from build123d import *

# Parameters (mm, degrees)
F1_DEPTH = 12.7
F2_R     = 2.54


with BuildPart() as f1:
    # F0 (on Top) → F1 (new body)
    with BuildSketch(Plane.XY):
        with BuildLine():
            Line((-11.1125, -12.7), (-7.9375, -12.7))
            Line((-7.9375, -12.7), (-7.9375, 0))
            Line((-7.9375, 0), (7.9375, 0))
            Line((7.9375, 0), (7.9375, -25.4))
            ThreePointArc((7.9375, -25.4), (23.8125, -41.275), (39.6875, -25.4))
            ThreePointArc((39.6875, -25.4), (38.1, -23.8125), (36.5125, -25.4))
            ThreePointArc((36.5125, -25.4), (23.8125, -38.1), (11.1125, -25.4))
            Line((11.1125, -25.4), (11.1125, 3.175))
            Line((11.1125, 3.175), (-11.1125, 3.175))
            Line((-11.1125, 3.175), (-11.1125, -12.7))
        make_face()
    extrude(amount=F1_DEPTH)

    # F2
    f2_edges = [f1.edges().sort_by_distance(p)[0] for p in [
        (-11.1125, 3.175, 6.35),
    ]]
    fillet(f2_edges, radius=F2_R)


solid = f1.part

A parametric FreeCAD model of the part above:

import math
import FreeCAD as App
import Part
import Sketcher

V = App.Vector
Q = App.Units.Quantity


def edges_at(feature, points):
    """Names of the edges that pass closest to the given points."""
    edges = feature.Shape.Edges
    near = lambda p: min(range(len(edges)), key=lambda i: edges[i].distToShape(Part.Vertex(*p))[0])
    return sorted({f"Edge{near(p) + 1}" for p in points})

doc = App.newDocument("Part")
body = doc.addObject("PartDesign::Body", "Body")

sketch1 = doc.addObject("Sketcher::SketchObject", "Sketch")
body.addObject(sketch1)
sketch1.AttachmentSupport = (doc.XY_Plane, [""])
sketch1.MapMode = "FlatFace"
sketch1.addGeometry(Part.LineSegment(V(-11.1, -12.7, 0), V(-7.9, -12.7, 0)), False)
sketch1.addGeometry(Part.LineSegment(V(-7.9, -12.7, 0), V(-7.9, 0, 0)), False)
sketch1.addGeometry(Part.LineSegment(V(-7.9, 0, 0), V(7.9, 0, 0)), False)
sketch1.addGeometry(Part.LineSegment(V(7.9, 0, 0), V(7.9, -25.4, 0)), False)
sketch1.addGeometry(Part.ArcOfCircle(Part.Circle(V(23.8, -25.4, 0), V(0, 0, 1), 15.9), math.radians(180), math.radians(360)), False)
sketch1.addGeometry(Part.ArcOfCircle(Part.Circle(V(38.1, -25.4, 0), V(0, 0, 1), 1.6), math.radians(0), math.radians(180)), False)
sketch1.addGeometry(Part.ArcOfCircle(Part.Circle(V(23.8, -25.4, 0), V(0, 0, 1), 12.7), math.radians(180), math.radians(360)), False)
sketch1.addGeometry(Part.LineSegment(V(11.1, -25.4, 0), V(11.1, 3.2, 0)), False)
sketch1.addGeometry(Part.LineSegment(V(11.1, 3.2, 0), V(-11.1, 3.2, 0)), False)
sketch1.addGeometry(Part.LineSegment(V(-11.1, 3.2, 0), V(-11.1, -12.7, 0)), False)
sketch1.addConstraint(Sketcher.Constraint("Coincident", 0, 2, 1, 1))
sketch1.addConstraint(Sketcher.Constraint("Coincident", 1, 2, 2, 1))
sketch1.addConstraint(Sketcher.Constraint("Coincident", 2, 2, 3, 1))
sketch1.addConstraint(Sketcher.Constraint("Tangent", 3, 2, 4, 1))
sketch1.addConstraint(Sketcher.Constraint("Tangent", 4, 2, 5, 1))
sketch1.addConstraint(Sketcher.Constraint("Tangent", 5, 2, 6, 2))
sketch1.addConstraint(Sketcher.Constraint("Tangent", 6, 1, 7, 1))
sketch1.addConstraint(Sketcher.Constraint("Coincident", 7, 2, 8, 1))
sketch1.addConstraint(Sketcher.Constraint("Coincident", 8, 2, 9, 1))
sketch1.addConstraint(Sketcher.Constraint("Coincident", 9, 2, 0, 1))
sketch1.addConstraint(Sketcher.Constraint("Horizontal", 0))
sketch1.addConstraint(Sketcher.Constraint("Vertical", 1))
sketch1.addConstraint(Sketcher.Constraint("Horizontal", 2))
sketch1.addConstraint(Sketcher.Constraint("Vertical", 3))
sketch1.addConstraint(Sketcher.Constraint("Vertical", 7))
sketch1.addConstraint(Sketcher.Constraint("Horizontal", 8))
sketch1.addConstraint(Sketcher.Constraint("Vertical", 9))
sketch1.addConstraint(Sketcher.Constraint("Coincident", 6, 3, 4, 3))
sketch1.addConstraint(Sketcher.Constraint("Symmetric", 1, 2, 2, 2, -1, 1))
sketch1.addConstraint(Sketcher.Constraint("Horizontal", 4, 3, 5, 3))
sketch1.addConstraint(Sketcher.Constraint("Equal", 2, 9))
sketch1.addConstraint(Sketcher.Constraint("Radius", 6, Q("0.5 in")))
sketch1.addConstraint(Sketcher.Constraint("DistanceY", 3, 2, 3, 1, Q("1 in")))
sketch1.addConstraint(Sketcher.Constraint("DistanceY", 1, 1, 1, 2, Q("0.5 in")))
sketch1.addConstraint(Sketcher.Constraint("Radius", 4, Q("0.625 in")))
sketch1.addConstraint(Sketcher.Constraint("DistanceX", -1, 1, 5, 3, Q("1.5 in")))
sketch1.addConstraint(Sketcher.Constraint("DistanceX", 0, 1, 0, 2, Q("0.125 in")))
pad1 = doc.addObject("PartDesign::Pad", "Pad")
body.addObject(pad1)
pad1.Profile = sketch1
pad1.Length = Q("0.5 in")
doc.recompute()

fillet = doc.addObject("PartDesign::Fillet", "Fillet")
body.addObject(fillet)
fillet.Base = (pad1, edges_at(pad1, [(-11.113, 3.175, 6.35)]))
fillet.Radius = Q("0.1 in")

doc.recompute()
